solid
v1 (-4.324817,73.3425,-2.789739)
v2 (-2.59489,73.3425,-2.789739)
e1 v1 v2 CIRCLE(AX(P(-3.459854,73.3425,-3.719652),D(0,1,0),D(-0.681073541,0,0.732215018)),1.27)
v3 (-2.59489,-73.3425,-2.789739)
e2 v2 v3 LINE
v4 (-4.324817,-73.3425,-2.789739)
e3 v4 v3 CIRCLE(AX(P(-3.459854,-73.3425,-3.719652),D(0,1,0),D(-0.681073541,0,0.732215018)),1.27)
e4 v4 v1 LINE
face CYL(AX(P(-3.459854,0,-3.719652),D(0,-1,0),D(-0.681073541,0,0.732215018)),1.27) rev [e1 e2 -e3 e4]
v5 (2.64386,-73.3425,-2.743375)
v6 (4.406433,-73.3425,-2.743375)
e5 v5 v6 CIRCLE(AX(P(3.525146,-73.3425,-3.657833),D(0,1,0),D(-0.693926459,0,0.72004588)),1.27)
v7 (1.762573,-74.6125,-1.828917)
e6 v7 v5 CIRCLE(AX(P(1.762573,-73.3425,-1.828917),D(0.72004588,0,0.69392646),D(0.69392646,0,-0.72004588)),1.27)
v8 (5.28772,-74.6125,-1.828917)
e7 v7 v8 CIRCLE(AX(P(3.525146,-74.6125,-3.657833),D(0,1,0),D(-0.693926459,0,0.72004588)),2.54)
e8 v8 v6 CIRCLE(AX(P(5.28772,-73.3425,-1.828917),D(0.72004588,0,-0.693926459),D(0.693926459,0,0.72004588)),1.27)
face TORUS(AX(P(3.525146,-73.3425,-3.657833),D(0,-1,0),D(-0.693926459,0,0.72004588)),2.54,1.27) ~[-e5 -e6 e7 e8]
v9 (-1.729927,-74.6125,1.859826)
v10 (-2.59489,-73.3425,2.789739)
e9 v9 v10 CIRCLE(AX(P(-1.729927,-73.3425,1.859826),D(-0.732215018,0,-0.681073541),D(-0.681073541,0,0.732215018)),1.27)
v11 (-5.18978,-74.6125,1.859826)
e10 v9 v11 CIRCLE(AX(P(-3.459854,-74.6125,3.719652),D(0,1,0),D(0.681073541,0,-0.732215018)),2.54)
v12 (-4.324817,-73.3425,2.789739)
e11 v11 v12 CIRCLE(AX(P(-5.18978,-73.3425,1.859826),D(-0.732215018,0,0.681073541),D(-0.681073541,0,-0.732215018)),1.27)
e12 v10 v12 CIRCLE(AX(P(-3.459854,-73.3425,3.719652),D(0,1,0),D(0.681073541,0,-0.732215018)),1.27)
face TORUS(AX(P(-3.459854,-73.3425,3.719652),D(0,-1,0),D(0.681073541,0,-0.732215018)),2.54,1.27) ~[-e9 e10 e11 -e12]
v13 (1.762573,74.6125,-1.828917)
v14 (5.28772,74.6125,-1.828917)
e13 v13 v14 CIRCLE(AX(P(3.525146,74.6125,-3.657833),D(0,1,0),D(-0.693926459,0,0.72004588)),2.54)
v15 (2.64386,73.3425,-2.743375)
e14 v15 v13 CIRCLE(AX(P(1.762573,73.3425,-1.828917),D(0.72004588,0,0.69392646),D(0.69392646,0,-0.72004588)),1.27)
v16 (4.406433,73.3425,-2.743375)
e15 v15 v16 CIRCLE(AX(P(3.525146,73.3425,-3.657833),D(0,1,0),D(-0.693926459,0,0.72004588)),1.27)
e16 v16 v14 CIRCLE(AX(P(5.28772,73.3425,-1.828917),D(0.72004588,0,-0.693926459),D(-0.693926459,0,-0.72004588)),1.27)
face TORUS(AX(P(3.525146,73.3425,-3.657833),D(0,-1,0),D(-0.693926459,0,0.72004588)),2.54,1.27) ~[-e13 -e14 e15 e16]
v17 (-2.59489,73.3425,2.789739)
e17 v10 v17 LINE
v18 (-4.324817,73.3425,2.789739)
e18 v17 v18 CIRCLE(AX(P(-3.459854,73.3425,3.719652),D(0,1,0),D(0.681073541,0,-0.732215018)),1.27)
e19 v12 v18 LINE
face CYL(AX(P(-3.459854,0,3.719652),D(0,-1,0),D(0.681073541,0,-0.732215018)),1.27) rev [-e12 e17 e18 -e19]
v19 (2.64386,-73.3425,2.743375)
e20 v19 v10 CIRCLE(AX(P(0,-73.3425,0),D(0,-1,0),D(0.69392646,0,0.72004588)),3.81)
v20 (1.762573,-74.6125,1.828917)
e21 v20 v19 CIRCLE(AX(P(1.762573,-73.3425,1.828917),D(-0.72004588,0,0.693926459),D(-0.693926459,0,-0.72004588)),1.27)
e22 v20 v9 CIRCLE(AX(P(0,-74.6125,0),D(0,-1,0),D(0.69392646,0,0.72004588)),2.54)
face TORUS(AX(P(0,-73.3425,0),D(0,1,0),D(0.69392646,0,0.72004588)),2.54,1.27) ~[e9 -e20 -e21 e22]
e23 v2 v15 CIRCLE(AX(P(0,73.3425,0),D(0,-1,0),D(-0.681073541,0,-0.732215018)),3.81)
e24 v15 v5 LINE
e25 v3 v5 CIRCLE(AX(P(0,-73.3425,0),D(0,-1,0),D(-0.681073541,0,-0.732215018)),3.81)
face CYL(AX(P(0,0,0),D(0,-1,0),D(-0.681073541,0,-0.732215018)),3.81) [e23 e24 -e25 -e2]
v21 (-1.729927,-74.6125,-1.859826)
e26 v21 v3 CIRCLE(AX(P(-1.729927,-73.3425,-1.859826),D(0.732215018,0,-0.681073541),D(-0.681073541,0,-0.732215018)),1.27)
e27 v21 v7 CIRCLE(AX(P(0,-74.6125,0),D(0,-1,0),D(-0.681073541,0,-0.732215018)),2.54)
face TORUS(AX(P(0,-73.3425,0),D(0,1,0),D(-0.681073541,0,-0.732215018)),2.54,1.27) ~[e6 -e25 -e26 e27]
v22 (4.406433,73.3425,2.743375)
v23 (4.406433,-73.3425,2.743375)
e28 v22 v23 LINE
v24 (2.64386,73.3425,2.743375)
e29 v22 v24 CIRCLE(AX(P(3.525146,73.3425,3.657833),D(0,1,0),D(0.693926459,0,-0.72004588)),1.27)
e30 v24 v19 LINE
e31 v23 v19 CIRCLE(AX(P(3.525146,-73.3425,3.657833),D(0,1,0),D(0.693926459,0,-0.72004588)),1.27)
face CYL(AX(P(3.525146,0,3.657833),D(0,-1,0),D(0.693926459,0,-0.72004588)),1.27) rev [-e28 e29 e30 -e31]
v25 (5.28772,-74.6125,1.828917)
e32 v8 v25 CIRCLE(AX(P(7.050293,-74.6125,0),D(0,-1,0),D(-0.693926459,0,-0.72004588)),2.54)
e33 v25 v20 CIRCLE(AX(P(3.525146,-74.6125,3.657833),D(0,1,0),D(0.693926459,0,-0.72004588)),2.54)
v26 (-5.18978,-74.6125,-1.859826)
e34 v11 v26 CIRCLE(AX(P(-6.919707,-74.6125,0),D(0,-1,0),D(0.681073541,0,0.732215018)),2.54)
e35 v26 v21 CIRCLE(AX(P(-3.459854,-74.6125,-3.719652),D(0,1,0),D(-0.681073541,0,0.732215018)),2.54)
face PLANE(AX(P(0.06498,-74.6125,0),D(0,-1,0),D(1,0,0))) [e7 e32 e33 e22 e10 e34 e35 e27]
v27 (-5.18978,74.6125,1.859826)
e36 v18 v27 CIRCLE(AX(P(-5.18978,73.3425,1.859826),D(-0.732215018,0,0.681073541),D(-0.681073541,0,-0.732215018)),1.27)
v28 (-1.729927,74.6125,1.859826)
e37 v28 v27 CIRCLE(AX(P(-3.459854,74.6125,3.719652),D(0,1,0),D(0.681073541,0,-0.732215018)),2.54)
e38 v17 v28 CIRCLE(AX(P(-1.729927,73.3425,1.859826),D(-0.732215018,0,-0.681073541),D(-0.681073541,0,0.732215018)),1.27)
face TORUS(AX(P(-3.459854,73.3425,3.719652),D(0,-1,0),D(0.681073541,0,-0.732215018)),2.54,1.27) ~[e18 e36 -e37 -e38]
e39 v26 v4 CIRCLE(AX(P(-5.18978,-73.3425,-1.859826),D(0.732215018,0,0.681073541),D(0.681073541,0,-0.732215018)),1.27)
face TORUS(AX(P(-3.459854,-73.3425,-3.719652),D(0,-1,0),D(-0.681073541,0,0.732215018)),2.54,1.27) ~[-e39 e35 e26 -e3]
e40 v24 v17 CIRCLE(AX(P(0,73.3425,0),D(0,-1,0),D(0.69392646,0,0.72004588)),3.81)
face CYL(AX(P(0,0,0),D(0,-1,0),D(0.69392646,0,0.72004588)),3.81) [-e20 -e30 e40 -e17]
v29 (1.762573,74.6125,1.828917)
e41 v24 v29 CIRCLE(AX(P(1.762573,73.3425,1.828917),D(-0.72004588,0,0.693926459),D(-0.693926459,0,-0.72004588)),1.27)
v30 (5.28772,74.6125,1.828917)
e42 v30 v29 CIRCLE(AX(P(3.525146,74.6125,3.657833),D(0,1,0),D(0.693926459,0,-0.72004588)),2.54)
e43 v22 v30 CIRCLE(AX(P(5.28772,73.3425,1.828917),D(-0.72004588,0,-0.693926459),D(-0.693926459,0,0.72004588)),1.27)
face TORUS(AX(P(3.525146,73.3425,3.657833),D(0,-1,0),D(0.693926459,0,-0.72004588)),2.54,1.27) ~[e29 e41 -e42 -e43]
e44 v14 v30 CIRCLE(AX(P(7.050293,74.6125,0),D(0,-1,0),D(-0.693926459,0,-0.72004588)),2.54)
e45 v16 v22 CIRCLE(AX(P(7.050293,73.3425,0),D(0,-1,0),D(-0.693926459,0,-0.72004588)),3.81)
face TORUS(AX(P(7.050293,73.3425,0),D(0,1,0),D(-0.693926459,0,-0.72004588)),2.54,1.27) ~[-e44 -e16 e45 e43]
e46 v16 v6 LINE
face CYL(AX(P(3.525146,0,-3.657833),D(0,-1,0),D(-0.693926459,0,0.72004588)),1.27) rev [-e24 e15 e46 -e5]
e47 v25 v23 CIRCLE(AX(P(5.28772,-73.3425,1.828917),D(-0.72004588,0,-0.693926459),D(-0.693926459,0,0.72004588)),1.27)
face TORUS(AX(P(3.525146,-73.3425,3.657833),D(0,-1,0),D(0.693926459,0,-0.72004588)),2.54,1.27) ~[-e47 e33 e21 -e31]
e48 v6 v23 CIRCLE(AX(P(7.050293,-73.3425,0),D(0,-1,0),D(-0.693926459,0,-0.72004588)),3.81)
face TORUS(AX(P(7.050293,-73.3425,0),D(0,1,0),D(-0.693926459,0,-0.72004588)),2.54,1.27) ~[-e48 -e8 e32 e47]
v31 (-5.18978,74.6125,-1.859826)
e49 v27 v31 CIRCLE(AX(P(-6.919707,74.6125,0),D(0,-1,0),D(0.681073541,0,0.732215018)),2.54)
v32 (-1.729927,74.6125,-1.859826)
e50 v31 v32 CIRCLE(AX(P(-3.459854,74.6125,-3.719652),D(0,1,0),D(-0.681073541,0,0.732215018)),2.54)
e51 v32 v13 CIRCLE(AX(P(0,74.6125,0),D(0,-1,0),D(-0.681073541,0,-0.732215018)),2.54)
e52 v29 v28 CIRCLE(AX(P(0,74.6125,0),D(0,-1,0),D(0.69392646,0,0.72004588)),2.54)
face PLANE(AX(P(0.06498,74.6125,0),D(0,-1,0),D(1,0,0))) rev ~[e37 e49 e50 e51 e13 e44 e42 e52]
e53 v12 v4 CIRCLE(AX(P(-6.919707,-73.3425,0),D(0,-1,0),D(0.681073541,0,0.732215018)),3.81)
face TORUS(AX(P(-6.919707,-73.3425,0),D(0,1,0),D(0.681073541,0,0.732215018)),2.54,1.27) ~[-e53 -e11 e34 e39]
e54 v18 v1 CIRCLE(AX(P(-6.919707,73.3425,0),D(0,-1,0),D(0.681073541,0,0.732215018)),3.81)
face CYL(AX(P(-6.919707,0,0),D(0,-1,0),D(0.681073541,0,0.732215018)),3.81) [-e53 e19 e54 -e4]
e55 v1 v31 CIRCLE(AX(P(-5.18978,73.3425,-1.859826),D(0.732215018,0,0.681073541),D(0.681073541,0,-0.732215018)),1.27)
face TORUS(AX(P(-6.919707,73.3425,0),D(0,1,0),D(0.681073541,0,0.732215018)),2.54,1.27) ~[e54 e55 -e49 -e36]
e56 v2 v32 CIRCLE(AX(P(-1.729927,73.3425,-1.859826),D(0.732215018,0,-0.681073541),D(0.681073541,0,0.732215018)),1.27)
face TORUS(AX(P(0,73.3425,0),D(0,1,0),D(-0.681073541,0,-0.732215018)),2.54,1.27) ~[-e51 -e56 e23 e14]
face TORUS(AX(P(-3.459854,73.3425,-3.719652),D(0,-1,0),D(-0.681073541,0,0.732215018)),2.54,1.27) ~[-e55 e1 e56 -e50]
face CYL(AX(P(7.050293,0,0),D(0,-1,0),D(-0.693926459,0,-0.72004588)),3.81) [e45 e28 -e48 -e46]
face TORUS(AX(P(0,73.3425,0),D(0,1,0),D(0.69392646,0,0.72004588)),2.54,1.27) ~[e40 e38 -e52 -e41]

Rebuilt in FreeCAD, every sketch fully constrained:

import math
import FreeCAD as App
import Part
import Sketcher

V = App.Vector
Q = App.Units.Quantity


def edges_at(feature, points):
    """Names of the edges that pass closest to the given points."""
    edges = feature.Shape.Edges
    near = lambda p: min(range(len(edges)), key=lambda i: edges[i].distToShape(Part.Vertex(*p))[0])
    return sorted({f"Edge{near(p) + 1}" for p in points})

doc = App.newDocument("Part")
body = doc.addObject("PartDesign::Body", "Body")

# Sketch on XZ plane
sketch1 = body.newObject("Sketcher::SketchObject", "Sketch")
sketch1.AttachmentSupport = (doc.getObject("XZ_Plane"), [""])
sketch1.MapMode = "FlatFace"
sketch1.addGeometry([
    Part.ArcOfCircle(Part.Circle(V(-3.5, -3.7, 0), V(0, 0, 1), 1.3), math.radians(47), math.radians(133)),  # 0
    Part.ArcOfCircle(Part.Circle(V(0, 0, 0), V(0, 0, 1), 3.8), math.radians(-133), math.radians(-46)),  # 1
    Part.ArcOfCircle(Part.Circle(V(3.5, -3.7, 0), V(0, 0, 1), 1.3), math.radians(46), math.radians(134)),  # 2
    Part.ArcOfCircle(Part.Circle(V(7.1, 0, 0), V(0, 0, 1), 3.8), math.radians(-134), math.radians(134)),  # 3
    Part.ArcOfCircle(Part.Circle(V(3.5, 3.7, 0), V(0, 0, 1), 1.3), math.radians(-134), math.radians(-46)),  # 4
    Part.ArcOfCircle(Part.Circle(V(0, 0, 0), V(0, 0, 1), 3.8), math.radians(46), math.radians(133)),  # 5
    Part.ArcOfCircle(Part.Circle(V(-3.5, 3.7, 0), V(0, 0, 1), 1.3), math.radians(-133), math.radians(-47)),  # 6
    Part.ArcOfCircle(Part.Circle(V(-6.9, 0, 0), V(0, 0, 1), 3.8), math.radians(47), math.radians(313)),  # 7
], False)
sketch1.addConstraint([
    Sketcher.Constraint("Tangent", 0, 1, 1, 1),
    Sketcher.Constraint("Tangent", 1, 2, 2, 2),
    Sketcher.Constraint("Tangent", 2, 1, 3, 1),
    Sketcher.Constraint("Tangent", 3, 2, 4, 2),
    Sketcher.Constraint("Tangent", 4, 1, 5, 1),
    Sketcher.Constraint("Tangent", 5, 2, 6, 2),
    Sketcher.Constraint("Tangent", 6, 1, 7, 1),
    Sketcher.Constraint("Tangent", 7, 2, 0, 2),
    Sketcher.Constraint("Coincident", 1, 3, -1, 1),
    Sketcher.Constraint("Coincident", 5, 3, -1, 1),
    Sketcher.Constraint("Equal", 0, 2),
    Sketcher.Constraint("Equal", 1, 3),
    Sketcher.Constraint("Equal", 2, 4),
    Sketcher.Constraint("Equal", 3, 5),
    Sketcher.Constraint("Equal", 4, 6),
    Sketcher.Constraint("Equal", 5, 7),
    Sketcher.Constraint("PointOnObject", 3, 3, -1),
    Sketcher.Constraint("PointOnObject", 7, 3, -1),
    Sketcher.Constraint("Radius", 0, Q("0.05 in")),
    Sketcher.Constraint("Radius", 1, Q("0.15 in")),
    Sketcher.Constraint("DistanceX", 0, 3, 2, 3, Q("0.275 in")),
    Sketcher.Constraint("DistanceX", 0, 1, -1, 1, 2.59489),
])
pad1 = body.newObject("PartDesign::Pad", "Pad")
pad1.Profile = sketch1
pad1.Length = Q("5.875 in")
pad1.Midplane = True
doc.recompute()

fillet = body.newObject("PartDesign::Fillet", "Fillet")
fillet.Base = (pad1, edges_at(pad1, [(0.034, -74.612, -3.81), (10.86, 74.612, 0)]))
fillet.Radius = Q("0.05 in")

doc.recompute()
